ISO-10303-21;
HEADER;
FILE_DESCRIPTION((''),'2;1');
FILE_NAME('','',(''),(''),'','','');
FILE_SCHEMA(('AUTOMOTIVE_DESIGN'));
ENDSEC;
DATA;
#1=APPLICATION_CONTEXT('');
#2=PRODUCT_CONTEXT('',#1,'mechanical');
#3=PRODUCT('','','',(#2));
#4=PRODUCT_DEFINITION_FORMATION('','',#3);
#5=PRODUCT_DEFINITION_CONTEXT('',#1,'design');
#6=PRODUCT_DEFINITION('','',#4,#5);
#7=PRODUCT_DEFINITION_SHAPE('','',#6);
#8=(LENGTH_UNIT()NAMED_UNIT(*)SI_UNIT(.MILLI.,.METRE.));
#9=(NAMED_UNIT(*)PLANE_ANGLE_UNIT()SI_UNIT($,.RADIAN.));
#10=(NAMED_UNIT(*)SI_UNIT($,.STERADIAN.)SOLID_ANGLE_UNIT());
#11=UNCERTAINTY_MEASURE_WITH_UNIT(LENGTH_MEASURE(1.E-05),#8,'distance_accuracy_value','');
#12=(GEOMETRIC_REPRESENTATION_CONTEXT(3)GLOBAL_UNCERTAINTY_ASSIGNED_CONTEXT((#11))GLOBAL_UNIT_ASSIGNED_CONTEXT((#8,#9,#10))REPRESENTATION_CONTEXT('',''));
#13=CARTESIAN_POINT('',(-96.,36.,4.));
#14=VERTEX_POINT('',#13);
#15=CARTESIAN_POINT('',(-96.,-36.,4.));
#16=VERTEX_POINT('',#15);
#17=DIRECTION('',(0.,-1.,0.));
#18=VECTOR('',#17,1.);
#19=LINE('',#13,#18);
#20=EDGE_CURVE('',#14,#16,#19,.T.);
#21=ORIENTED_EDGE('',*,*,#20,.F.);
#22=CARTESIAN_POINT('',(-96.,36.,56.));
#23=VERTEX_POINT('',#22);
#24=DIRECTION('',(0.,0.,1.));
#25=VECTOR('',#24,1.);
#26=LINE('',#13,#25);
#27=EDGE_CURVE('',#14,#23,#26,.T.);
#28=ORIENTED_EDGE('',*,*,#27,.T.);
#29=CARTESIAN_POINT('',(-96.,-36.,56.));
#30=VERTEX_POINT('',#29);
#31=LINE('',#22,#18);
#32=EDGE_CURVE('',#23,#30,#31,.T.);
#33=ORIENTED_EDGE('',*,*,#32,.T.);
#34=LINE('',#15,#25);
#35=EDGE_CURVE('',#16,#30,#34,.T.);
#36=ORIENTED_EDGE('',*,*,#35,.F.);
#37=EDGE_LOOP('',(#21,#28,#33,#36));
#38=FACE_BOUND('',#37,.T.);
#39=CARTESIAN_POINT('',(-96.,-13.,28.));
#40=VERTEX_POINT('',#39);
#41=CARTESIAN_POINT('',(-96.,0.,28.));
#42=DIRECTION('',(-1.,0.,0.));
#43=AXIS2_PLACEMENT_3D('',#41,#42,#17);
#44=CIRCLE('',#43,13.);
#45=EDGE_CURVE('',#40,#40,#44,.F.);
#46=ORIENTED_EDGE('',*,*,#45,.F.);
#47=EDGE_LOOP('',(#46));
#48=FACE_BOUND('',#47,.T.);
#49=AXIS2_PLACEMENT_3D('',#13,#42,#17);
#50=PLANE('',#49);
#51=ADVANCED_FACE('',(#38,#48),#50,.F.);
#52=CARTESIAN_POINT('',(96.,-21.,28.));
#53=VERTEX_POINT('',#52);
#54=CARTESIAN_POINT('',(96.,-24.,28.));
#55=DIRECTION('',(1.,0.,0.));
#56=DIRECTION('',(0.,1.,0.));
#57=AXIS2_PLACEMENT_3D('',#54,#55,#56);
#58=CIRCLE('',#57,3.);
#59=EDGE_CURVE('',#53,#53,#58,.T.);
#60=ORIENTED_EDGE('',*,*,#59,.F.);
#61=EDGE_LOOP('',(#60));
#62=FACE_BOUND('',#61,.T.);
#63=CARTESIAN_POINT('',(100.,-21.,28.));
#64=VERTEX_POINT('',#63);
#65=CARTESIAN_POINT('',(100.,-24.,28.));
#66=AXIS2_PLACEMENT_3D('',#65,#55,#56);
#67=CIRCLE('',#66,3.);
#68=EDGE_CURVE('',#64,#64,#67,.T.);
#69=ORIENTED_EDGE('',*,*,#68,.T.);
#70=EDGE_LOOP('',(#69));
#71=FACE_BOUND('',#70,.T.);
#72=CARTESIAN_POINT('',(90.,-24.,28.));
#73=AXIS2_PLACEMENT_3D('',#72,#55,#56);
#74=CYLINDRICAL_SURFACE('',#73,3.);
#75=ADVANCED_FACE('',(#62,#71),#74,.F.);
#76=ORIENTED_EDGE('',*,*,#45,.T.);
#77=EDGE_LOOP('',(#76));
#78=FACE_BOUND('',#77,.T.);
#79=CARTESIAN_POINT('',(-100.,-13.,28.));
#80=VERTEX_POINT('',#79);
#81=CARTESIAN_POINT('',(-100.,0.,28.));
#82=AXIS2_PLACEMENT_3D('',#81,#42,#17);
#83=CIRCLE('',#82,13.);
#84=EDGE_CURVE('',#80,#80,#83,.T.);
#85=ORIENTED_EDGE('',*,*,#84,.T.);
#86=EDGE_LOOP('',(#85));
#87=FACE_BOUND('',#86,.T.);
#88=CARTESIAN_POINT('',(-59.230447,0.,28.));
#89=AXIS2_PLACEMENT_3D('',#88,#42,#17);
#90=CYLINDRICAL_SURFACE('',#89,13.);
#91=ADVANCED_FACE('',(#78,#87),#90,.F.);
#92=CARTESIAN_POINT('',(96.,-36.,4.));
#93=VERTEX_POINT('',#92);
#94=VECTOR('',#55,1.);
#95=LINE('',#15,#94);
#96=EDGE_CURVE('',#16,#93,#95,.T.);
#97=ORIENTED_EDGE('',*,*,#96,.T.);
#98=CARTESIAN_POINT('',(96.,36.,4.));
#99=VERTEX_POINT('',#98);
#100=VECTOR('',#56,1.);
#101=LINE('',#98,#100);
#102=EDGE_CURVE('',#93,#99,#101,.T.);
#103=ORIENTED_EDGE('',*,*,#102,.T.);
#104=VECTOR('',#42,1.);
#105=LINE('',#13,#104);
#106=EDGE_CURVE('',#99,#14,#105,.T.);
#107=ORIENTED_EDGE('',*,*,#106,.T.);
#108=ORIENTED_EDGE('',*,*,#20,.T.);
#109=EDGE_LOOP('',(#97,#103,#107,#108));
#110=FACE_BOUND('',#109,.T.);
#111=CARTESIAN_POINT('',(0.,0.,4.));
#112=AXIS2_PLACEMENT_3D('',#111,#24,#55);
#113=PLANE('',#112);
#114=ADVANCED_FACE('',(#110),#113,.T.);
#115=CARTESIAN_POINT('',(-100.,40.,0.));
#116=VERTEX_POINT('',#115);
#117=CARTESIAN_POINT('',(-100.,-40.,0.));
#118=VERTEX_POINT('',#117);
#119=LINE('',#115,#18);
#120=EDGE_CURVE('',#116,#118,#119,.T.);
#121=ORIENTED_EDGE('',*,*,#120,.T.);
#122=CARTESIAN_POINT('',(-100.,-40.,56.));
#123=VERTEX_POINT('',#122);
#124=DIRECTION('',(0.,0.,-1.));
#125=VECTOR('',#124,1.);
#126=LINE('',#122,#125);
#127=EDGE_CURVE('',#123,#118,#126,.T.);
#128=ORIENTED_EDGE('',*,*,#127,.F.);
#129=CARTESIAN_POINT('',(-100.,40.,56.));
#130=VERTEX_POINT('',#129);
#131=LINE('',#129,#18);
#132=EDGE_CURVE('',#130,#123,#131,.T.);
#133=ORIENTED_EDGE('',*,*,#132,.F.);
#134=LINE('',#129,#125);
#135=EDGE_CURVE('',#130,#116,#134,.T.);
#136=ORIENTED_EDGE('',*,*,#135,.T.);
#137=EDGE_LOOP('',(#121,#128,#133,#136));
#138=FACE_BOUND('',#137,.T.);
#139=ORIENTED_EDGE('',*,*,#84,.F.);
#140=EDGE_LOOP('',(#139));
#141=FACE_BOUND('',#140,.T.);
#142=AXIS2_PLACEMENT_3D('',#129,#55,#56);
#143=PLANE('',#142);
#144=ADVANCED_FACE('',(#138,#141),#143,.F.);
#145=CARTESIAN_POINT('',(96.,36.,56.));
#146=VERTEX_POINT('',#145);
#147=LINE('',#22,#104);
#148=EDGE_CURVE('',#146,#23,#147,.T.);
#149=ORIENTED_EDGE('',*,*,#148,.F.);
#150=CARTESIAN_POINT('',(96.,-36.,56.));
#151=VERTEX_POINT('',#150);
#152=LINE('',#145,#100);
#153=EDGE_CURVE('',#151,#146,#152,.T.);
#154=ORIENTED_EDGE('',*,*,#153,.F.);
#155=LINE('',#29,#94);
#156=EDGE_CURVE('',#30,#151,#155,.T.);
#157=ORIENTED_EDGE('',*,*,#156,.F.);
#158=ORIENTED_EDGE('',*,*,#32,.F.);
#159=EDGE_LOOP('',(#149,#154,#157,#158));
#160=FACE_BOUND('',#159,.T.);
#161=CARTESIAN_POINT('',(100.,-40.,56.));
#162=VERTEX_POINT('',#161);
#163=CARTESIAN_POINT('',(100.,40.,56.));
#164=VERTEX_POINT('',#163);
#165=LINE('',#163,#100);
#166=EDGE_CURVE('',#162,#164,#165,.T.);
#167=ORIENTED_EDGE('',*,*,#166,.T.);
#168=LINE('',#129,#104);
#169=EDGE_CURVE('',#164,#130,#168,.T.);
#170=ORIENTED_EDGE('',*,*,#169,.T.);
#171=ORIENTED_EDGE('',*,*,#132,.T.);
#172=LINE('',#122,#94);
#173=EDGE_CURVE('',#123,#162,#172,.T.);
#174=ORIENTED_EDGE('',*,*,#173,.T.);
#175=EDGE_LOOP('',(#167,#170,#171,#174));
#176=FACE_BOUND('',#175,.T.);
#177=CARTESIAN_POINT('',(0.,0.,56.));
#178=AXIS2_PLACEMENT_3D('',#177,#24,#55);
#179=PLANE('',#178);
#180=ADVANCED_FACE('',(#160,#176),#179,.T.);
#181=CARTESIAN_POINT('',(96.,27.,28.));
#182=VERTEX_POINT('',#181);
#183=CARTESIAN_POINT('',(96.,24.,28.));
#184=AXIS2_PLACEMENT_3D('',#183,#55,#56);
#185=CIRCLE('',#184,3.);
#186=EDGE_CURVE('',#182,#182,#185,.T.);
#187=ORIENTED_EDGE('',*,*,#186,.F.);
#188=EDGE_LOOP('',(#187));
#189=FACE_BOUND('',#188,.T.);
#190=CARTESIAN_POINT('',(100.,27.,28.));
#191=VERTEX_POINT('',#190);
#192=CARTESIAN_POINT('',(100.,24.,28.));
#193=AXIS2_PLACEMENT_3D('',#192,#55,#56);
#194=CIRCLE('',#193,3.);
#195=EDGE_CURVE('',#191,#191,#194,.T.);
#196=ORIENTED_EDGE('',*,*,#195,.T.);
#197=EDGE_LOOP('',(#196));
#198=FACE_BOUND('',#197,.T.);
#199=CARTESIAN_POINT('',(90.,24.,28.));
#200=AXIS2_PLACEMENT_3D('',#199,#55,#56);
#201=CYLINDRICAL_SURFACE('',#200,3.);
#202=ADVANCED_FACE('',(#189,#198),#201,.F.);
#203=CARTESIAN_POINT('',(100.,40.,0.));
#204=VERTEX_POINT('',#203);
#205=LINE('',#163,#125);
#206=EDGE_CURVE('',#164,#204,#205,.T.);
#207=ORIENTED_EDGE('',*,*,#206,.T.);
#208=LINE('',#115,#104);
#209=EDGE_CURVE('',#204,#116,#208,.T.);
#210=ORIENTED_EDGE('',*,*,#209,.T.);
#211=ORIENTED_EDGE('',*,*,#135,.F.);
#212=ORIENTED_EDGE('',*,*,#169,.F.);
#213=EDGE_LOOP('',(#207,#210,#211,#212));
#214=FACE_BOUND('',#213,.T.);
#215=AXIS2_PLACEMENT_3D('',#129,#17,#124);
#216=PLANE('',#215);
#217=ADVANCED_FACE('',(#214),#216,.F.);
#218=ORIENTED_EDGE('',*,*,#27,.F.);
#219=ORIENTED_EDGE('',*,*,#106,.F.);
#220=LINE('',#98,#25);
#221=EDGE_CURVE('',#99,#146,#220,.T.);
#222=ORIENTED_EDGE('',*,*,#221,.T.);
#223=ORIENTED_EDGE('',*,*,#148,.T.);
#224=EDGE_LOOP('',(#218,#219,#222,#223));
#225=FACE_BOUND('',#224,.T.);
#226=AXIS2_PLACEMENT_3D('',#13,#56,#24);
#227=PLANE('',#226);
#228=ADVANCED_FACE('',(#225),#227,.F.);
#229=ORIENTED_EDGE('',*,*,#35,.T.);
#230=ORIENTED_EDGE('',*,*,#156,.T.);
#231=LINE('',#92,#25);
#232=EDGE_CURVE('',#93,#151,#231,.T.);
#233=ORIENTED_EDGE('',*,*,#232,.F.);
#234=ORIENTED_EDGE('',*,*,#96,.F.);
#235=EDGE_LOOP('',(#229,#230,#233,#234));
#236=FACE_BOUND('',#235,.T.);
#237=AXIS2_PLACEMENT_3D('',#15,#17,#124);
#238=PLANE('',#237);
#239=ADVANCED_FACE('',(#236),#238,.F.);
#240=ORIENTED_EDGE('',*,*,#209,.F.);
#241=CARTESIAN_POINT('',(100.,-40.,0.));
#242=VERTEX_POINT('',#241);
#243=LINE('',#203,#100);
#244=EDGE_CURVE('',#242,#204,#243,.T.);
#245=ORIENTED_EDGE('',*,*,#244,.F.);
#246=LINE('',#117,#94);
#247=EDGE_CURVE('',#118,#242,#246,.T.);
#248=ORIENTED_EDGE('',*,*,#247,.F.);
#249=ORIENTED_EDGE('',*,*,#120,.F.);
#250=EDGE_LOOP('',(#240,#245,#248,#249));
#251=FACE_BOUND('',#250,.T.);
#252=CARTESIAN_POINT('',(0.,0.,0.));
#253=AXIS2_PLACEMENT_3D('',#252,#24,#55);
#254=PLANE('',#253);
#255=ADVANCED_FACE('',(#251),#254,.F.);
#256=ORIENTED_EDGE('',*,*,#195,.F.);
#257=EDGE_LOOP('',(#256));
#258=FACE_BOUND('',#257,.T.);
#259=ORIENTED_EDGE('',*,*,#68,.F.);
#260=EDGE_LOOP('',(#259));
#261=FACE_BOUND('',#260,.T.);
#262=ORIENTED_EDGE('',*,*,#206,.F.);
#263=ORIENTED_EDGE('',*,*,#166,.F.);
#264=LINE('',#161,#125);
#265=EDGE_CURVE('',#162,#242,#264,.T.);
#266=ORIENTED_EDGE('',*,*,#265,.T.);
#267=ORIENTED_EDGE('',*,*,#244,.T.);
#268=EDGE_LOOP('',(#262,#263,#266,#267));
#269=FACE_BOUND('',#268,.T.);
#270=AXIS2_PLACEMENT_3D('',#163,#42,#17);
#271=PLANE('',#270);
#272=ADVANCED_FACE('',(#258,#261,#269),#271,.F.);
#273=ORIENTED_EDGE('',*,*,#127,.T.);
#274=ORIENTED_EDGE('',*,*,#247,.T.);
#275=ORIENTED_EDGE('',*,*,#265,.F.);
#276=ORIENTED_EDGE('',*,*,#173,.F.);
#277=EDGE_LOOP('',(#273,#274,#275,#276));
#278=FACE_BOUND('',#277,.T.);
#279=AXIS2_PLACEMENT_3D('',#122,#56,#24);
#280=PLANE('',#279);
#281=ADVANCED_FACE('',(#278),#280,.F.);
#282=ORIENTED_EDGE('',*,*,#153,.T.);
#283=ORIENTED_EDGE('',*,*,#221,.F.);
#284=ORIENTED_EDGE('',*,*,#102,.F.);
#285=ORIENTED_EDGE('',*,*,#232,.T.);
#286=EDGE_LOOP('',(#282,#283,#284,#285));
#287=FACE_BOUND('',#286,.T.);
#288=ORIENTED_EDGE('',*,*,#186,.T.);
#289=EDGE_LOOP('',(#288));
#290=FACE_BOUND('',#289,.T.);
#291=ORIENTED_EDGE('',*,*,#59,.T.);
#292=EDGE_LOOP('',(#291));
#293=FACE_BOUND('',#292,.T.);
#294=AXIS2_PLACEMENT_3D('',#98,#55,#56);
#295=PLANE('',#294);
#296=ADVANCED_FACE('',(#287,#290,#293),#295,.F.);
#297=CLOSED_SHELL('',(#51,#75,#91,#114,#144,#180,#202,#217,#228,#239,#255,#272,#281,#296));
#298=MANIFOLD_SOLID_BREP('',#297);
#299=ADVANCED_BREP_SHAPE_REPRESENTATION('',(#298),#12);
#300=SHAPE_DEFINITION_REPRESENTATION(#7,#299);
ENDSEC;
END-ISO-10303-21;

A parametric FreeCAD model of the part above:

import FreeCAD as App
import Part
import Sketcher
from FreeCAD import Vector

doc = App.newDocument("Part")
body = doc.addObject("PartDesign::Body", "Body")

# Sketch on XY plane
sketch1 = body.newObject("Sketcher::SketchObject", "Sketch")
sketch1.AttachmentSupport = (doc.getObject("XY_Plane"), [""])
sketch1.MapMode = "FlatFace"
sketch1.addGeometry([
    Part.LineSegment(Vector(-100, 40, 0), Vector(-100, -40, 0)),
    Part.LineSegment(Vector(-100, -40, 0), Vector(100, -40, 0)),
    Part.LineSegment(Vector(100, -40, 0), Vector(100, 40, 0)),
    Part.LineSegment(Vector(100, 40, 0), Vector(-100, 40, 0)),
], False)
sketch1.addConstraint([
    Sketcher.Constraint("Coincident", 0, 2, 1, 1),
    Sketcher.Constraint("Coincident", 1, 2, 2, 1),
    Sketcher.Constraint("Coincident", 2, 2, 3, 1),
    Sketcher.Constraint("Coincident", 3, 2, 0, 1),
    Sketcher.Constraint("Vertical", 0),
    Sketcher.Constraint("Horizontal", 1),
    Sketcher.Constraint("Vertical", 2),
    Sketcher.Constraint("Horizontal", 3),
    Sketcher.Constraint("Symmetric", 0, 2, 2, 2, -1, 1),
    Sketcher.Constraint("DistanceX", 1, 1, 1, 2, 200.0),
    Sketcher.Constraint("DistanceY", 0, 2, 0, 1, 80.0),
])
pad1 = body.newObject("PartDesign::Pad", "Pad")
pad1.Profile = sketch1
pad1.Length = 56

# Sketch on XY plane
sketch2 = body.newObject("Sketcher::SketchObject", "Sketch001")
sketch2.AttachmentSupport = (doc.getObject("XY_Plane"), [""])
sketch2.MapMode = "FlatFace"
sketch2.AttachmentOffset = App.Placement(Vector(0, 0, 56), App.Rotation())
sketch2.addGeometry([
    Part.LineSegment(Vector(-96, 36, 0), Vector(-96, -36, 0)),
    Part.LineSegment(Vector(-96, -36, 0), Vector(96, -36, 0)),
    Part.LineSegment(Vector(96, -36, 0), Vector(96, 36, 0)),
    Part.LineSegment(Vector(96, 36, 0), Vector(-96, 36, 0)),
], False)
sketch2.addConstraint([
    Sketcher.Constraint("Coincident", 0, 2, 1, 1),
    Sketcher.Constraint("Coincident", 1, 2, 2, 1),
    Sketcher.Constraint("Coincident", 2, 2, 3, 1),
    Sketcher.Constraint("Coincident", 3, 2, 0, 1),
    Sketcher.Constraint("Vertical", 0),
    Sketcher.Constraint("Horizontal", 1),
    Sketcher.Constraint("Vertical", 2),
    Sketcher.Constraint("Horizontal", 3),
    Sketcher.Constraint("Symmetric", 0, 2, 2, 2, -1, 1),
    Sketcher.Constraint("DistanceX", 1, 1, 1, 2, 192.0),
    Sketcher.Constraint("DistanceY", 0, 2, 0, 1, 72.0),
])
pocket1 = body.newObject("PartDesign::Pocket", "Pocket")
pocket1.Profile = sketch2
pocket1.Length = 52

# Sketch on YZ plane
sketch3 = body.newObject("Sketcher::SketchObject", "Sketch002")
sketch3.AttachmentSupport = (doc.getObject("YZ_Plane"), [""])
sketch3.MapMode = "FlatFace"
sketch3.AttachmentOffset = App.Placement(Vector(0, 0, -100), App.Rotation())
sketch3.addGeometry(Part.Circle(Vector(0, 28, 0), Vector(0, 0, 1), 13), False)
sketch3.addConstraint([
    Sketcher.Constraint("PointOnObject", 0, 3, -2),
    Sketcher.Constraint("Diameter", 0, 26.0),
    Sketcher.Constraint("DistanceY", -1, 1, 0, 3, 28.0),
])
pocket2 = body.newObject("PartDesign::Pocket", "Pocket001")
pocket2.Profile = sketch3
pocket2.Length = 4
pocket2.Reversed = True

# Sketch on YZ plane
sketch4 = body.newObject("Sketcher::SketchObject", "Sketch003")
sketch4.AttachmentSupport = (doc.getObject("YZ_Plane"), [""])
sketch4.MapMode = "FlatFace"
sketch4.AttachmentOffset = App.Placement(Vector(0, 0, 100), App.Rotation())
sketch4.addGeometry([
    Part.Circle(Vector(24, 28, 0), Vector(0, 0, 1), 3),
    Part.Circle(Vector(-24, 28, 0), Vector(0, 0, 1), 3),
], False)
sketch4.addConstraint([
    Sketcher.Constraint("Equal", 0, 1),
    Sketcher.Constraint("Symmetric", 0, 3, 1, 3, -2),
    Sketcher.Constraint("Diameter", 0, 6.0),
    Sketcher.Constraint("DistanceX", -1, 1, 0, 3, 24.0),
    Sketcher.Constraint("DistanceY", -1, 1, 0, 3, 28.0),
])
pocket3 = body.newObject("PartDesign::Pocket", "Pocket002")
pocket3.Profile = sketch4
pocket3.Length = 10

doc.recompute()
